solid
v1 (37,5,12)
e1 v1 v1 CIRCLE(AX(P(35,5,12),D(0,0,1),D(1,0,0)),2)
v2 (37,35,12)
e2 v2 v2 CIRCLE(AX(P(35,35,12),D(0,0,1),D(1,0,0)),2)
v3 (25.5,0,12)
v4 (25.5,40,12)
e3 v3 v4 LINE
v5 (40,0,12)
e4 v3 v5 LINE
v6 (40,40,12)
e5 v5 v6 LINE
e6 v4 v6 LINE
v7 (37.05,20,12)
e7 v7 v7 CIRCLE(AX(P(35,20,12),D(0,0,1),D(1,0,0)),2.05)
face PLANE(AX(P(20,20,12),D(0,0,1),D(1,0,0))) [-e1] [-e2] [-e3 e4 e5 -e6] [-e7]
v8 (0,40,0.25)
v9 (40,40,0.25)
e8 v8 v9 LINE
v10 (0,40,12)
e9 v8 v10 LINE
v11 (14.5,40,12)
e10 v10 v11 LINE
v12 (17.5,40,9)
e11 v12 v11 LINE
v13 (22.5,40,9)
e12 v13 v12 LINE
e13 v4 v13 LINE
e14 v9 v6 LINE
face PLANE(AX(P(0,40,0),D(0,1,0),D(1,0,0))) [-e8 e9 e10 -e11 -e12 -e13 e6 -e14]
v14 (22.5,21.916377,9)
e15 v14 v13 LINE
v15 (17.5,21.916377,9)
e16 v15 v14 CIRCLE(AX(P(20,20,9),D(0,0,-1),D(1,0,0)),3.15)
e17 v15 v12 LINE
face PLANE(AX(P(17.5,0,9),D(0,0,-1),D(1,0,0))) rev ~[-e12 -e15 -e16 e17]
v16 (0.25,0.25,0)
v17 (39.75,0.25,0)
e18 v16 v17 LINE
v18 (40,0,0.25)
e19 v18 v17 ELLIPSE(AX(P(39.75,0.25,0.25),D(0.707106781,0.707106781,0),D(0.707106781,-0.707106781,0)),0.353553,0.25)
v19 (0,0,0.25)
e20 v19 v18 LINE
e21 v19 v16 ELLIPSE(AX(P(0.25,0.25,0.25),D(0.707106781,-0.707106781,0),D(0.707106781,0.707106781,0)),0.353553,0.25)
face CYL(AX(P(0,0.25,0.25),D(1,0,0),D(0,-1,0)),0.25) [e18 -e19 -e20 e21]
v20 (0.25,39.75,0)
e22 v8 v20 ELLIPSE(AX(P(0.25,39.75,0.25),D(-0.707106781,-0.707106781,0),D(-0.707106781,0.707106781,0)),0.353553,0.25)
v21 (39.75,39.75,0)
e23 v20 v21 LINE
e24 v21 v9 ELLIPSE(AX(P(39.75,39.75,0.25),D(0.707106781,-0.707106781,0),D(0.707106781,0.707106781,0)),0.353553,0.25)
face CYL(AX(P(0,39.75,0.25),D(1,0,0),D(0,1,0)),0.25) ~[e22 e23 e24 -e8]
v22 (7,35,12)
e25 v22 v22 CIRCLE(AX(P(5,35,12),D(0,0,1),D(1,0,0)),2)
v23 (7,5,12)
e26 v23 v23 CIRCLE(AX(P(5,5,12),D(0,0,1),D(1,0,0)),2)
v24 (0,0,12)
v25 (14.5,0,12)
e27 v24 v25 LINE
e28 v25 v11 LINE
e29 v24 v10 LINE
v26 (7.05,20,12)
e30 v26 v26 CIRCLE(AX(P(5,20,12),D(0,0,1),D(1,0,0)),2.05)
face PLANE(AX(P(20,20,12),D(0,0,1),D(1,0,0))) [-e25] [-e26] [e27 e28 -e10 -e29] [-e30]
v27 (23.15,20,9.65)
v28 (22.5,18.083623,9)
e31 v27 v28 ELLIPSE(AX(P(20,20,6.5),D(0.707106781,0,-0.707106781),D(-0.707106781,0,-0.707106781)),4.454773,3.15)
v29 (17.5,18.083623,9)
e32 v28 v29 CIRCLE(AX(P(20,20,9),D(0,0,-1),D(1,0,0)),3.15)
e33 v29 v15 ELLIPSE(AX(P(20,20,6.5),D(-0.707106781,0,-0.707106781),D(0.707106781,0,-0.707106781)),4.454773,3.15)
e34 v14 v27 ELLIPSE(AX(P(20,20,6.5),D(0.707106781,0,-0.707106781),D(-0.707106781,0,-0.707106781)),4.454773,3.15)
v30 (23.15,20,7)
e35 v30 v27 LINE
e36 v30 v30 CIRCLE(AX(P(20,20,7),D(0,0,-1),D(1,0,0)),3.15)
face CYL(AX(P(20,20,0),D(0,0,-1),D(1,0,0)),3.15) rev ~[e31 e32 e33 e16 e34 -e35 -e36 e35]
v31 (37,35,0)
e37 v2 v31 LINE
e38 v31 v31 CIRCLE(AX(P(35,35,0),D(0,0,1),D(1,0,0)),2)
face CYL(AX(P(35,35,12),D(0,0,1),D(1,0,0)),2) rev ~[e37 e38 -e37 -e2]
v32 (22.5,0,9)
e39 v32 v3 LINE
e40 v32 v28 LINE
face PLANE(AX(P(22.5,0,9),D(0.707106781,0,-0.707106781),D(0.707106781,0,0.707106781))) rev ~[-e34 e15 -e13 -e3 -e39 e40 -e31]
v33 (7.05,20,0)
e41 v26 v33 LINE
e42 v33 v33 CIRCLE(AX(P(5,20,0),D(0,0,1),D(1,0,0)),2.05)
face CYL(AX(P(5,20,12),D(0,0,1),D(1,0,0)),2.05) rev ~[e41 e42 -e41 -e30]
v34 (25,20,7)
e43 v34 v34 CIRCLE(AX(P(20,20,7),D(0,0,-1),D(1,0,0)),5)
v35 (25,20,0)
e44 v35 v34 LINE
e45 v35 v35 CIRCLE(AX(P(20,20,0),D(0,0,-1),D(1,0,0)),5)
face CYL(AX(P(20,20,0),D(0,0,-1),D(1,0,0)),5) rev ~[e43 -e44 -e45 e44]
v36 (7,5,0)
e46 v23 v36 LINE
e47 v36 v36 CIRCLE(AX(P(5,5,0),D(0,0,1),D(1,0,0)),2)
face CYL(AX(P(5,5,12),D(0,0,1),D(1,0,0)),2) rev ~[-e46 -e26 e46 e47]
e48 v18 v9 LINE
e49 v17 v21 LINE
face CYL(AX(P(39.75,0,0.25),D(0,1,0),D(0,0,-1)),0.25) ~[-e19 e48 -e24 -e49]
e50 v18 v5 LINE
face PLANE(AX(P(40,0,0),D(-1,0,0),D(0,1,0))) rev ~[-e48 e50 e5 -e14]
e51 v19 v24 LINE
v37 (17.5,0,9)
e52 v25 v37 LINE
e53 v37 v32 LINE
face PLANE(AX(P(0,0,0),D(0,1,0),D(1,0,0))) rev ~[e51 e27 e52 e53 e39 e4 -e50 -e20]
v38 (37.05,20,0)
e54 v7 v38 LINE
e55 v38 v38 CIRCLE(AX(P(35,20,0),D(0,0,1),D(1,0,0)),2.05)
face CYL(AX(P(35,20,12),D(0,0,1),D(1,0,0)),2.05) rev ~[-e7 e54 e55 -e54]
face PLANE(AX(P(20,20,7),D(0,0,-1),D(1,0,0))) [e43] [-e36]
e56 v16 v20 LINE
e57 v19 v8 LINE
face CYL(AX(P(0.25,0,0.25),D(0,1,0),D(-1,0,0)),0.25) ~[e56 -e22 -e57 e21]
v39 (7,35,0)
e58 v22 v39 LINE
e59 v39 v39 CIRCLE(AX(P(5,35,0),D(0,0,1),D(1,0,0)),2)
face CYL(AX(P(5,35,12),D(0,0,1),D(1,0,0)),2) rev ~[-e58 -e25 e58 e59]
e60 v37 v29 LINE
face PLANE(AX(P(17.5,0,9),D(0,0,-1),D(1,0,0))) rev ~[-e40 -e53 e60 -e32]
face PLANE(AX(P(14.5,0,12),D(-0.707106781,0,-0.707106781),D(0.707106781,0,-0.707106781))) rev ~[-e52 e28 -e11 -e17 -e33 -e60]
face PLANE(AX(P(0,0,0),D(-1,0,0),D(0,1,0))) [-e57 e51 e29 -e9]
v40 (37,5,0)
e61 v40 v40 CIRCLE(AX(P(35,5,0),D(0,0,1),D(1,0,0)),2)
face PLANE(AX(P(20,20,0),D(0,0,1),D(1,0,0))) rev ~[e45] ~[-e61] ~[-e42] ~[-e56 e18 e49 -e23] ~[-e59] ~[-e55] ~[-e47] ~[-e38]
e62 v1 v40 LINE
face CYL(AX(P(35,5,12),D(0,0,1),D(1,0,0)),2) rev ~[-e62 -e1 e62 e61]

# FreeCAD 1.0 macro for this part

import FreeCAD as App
import Part
import Sketcher
from FreeCAD import Vector


def edges_at(feature, points):
    """Names of the edges that pass closest to the given points."""
    edges = feature.Shape.Edges
    near = lambda p: min(range(len(edges)), key=lambda i: edges[i].distToShape(Part.Vertex(*p))[0])
    return sorted({f"Edge{near(p) + 1}" for p in points})

doc = App.newDocument("Part")
params = doc.addObject("Spreadsheet::Sheet", "Params")
for row, (alias, value) in enumerate([
    ("sketch1_width", "40 mm"),
    ("pad1_length", "12 mm"),
    ("sketch2_width", "5 mm"),
    ("sketch2_width2", "11 mm"),
    ("sketch3_diameter", "4 mm"),
    ("sketch4_diameter", "4.1 mm"),
    ("fillet_radius", "0.25 mm"),
    ("sketch5_diameter", "6.3 mm"),
    ("sketch6_diameter", "10 mm"),
    ("pocket5_length", "7 mm"),
], start=1):
    params.set(f"A{row}", alias)
    params.set(f"B{row}", "=" + value)
    params.setAlias(f"B{row}", alias)

body = doc.addObject("PartDesign::Body", "Body")

# Sketch on XY plane
sketch1 = body.newObject("Sketcher::SketchObject", "Sketch")
sketch1.AttachmentSupport = (doc.getObject("XY_Plane"), [""])
sketch1.MapMode = "FlatFace"
sketch1.addGeometry([
    Part.LineSegment(Vector(0, 40, 0), Vector(0, 0, 0)),
    Part.LineSegment(Vector(0, 0, 0), Vector(40, 0, 0)),
    Part.LineSegment(Vector(40, 0, 0), Vector(40, 40, 0)),
    Part.LineSegment(Vector(40, 40, 0), Vector(0, 40, 0)),
], False)
sketch1.addConstraint([
    Sketcher.Constraint("Coincident", 0, 2, 1, 1),
    Sketcher.Constraint("Coincident", 1, 2, 2, 1),
    Sketcher.Constraint("Coincident", 2, 2, 3, 1),
    Sketcher.Constraint("Coincident", 3, 2, 0, 1),
    Sketcher.Constraint("Vertical", 0),
    Sketcher.Constraint("Horizontal", 1),
    Sketcher.Constraint("Vertical", 2),
    Sketcher.Constraint("Horizontal", 3),
    Sketcher.Constraint("Coincident", 0, 2, -1, 1),
    Sketcher.Constraint("Equal", 3, 0),
    Sketcher.Constraint("DistanceX", 1, 1, 1, 2, 40.0),
])
sketch1.setExpression("Constraints[10]", "Params.sketch1_width")
pad1 = body.newObject("PartDesign::Pad", "Pad")
pad1.Profile = sketch1
pad1.setExpression("Length", "Params.pad1_length")

# Sketch on XZ plane
sketch2 = body.newObject("Sketcher::SketchObject", "Sketch001")
sketch2.AttachmentSupport = (doc.getObject("XZ_Plane"), [""])
sketch2.MapMode = "FlatFace"
sketch2.addGeometry([
    Part.LineSegment(Vector(14.5, 12, 0), Vector(17.5, 9, 0)),
    Part.LineSegment(Vector(17.5, 9, 0), Vector(22.5, 9, 0)),
    Part.LineSegment(Vector(22.5, 9, 0), Vector(25.5, 12, 0)),
    Part.LineSegment(Vector(25.5, 12, 0), Vector(14.5, 12, 0)),
], False)
sketch2.addConstraint([
    Sketcher.Constraint("Coincident", 0, 2, 1, 1),
    Sketcher.Constraint("Coincident", 1, 2, 2, 1),
    Sketcher.Constraint("Coincident", 2, 2, 3, 1),
    Sketcher.Constraint("Coincident", 3, 2, 0, 1),
    Sketcher.Constraint("Horizontal", 1),
    Sketcher.Constraint("Horizontal", 3),
    Sketcher.Constraint("Perpendicular", 0, 2),
    Sketcher.Constraint("Equal", 0, 2),
    Sketcher.Constraint("DistanceX", 1, 1, 1, 2, 5.0),
    Sketcher.Constraint("DistanceX", 3, 2, 3, 1, 11.0),
    Sketcher.Constraint("DistanceY", -1, 1, 0, 2, 9.0),
    Sketcher.Constraint("DistanceX", -1, 1, 0, 2, 17.5),
])
sketch2.setExpression("Constraints[8]", "Params.sketch2_width")
sketch2.setExpression("Constraints[9]", "Params.sketch2_width2")
pocket1 = body.newObject("PartDesign::Pocket", "Pocket")
pocket1.Profile = sketch2
pocket1.Type = "ThroughAll"

# Sketch on XY plane
sketch3 = body.newObject("Sketcher::SketchObject", "Sketch002")
sketch3.AttachmentSupport = (doc.getObject("XY_Plane"), [""])
sketch3.MapMode = "FlatFace"
sketch3.AttachmentOffset = App.Placement(Vector(0, 0, 12), App.Rotation())
sketch3.addGeometry([
    Part.Circle(Vector(5, 5, 0), Vector(0, 0, 1), 2),
    Part.Circle(Vector(5, 35, 0), Vector(0, 0, 1), 2),
    Part.Circle(Vector(35, 5, 0), Vector(0, 0, 1), 2),
    Part.Circle(Vector(35, 35, 0), Vector(0, 0, 1), 2),
], False)
sketch3.addConstraint([
    Sketcher.Constraint("Equal", 0, 1),
    Sketcher.Constraint("Equal", 1, 2),
    Sketcher.Constraint("Equal", 2, 3),
    Sketcher.Constraint("Horizontal", 0, 3, 2, 3),
    Sketcher.Constraint("Horizontal", 1, 3, 3, 3),
    Sketcher.Constraint("Vertical", 0, 3, 1, 3),
    Sketcher.Constraint("Vertical", 2, 3, 3, 3),
    Sketcher.Constraint("Diameter", 0, 4.0),
    Sketcher.Constraint("DistanceX", -1, 1, 0, 3, 5.0),
    Sketcher.Constraint("DistanceY", -1, 1, 0, 3, 5.0),
    Sketcher.Constraint("DistanceY", -1, 1, 1, 3, 35.0),
    Sketcher.Constraint("DistanceX", -1, 1, 2, 3, 35.0),
])
sketch3.setExpression("Constraints[7]", "Params.sketch3_diameter")
pocket2 = body.newObject("PartDesign::Pocket", "Pocket001")
pocket2.Profile = sketch3
pocket2.Type = "ThroughAll"

# Sketch on XY plane
sketch4 = body.newObject("Sketcher::SketchObject", "Sketch003")
sketch4.AttachmentSupport = (doc.getObject("XY_Plane"), [""])
sketch4.MapMode = "FlatFace"
sketch4.AttachmentOffset = App.Placement(Vector(0, 0, 12), App.Rotation())
sketch4.addGeometry([
    Part.Circle(Vector(5, 20, 0), Vector(0, 0, 1), 2),
    Part.Circle(Vector(35, 20, 0), Vector(0, 0, 1), 2),
], False)
sketch4.addConstraint([
    Sketcher.Constraint("Equal", 0, 1),
    Sketcher.Constraint("Horizontal", 0, 3, 1, 3),
    Sketcher.Constraint("Diameter", 0, 4.1),
    Sketcher.Constraint("DistanceX", -1, 1, 0, 3, 5.0),
    Sketcher.Constraint("DistanceY", -1, 1, 0, 3, 20.0),
    Sketcher.Constraint("DistanceX", -1, 1, 1, 3, 35.0),
])
sketch4.setExpression("Constraints[2]", "Params.sketch4_diameter")
pocket3 = body.newObject("PartDesign::Pocket", "Pocket002")
pocket3.Profile = sketch4
pocket3.Type = "ThroughAll"
doc.recompute()

fillet = body.newObject("PartDesign::Fillet", "Fillet")
fillet.Base = (pocket3, edges_at(pocket3, [
    (20, 0, 0),
    (0, 20, 0),
    (40, 20, 0),
    (20, 40, 0),
]))
fillet.setExpression("Radius", "Params.fillet_radius")

# Sketch on XY plane
sketch5 = body.newObject("Sketcher::SketchObject", "Sketch004")
sketch5.AttachmentSupport = (doc.getObject("XY_Plane"), [""])
sketch5.MapMode = "FlatFace"
sketch5.addGeometry(Part.Circle(Vector(20, 20, 0), Vector(0, 0, 1), 3.1), False)
sketch5.addConstraint([
    Sketcher.Constraint("Diameter", 0, 6.3),
    Sketcher.Constraint("DistanceX", -1, 1, 0, 3, 20.0),
    Sketcher.Constraint("DistanceY", -1, 1, 0, 3, 20.0),
])
sketch5.setExpression("Constraints[0]", "Params.sketch5_diameter")
pocket4 = body.newObject("PartDesign::Pocket", "Pocket003")
pocket4.Profile = sketch5
pocket4.Type = "ThroughAll"
pocket4.Reversed = True

# Sketch on XY plane
sketch6 = body.newObject("Sketcher::SketchObject", "Sketch005")
sketch6.AttachmentSupport = (doc.getObject("XY_Plane"), [""])
sketch6.MapMode = "FlatFace"
sketch6.addGeometry(Part.Circle(Vector(20, 20, 0), Vector(0, 0, 1), 5), False)
sketch6.addConstraint([
    Sketcher.Constraint("Diameter", 0, 10.0),
    Sketcher.Constraint("DistanceX", -1, 1, 0, 3, 20.0),
    Sketcher.Constraint("DistanceY", -1, 1, 0, 3, 20.0),
])
sketch6.setExpression("Constraints[0]", "Params.sketch6_diameter")
pocket5 = body.newObject("PartDesign::Pocket", "Pocket004")
pocket5.Profile = sketch6
pocket5.setExpression("Length", "Params.pocket5_length")
pocket5.Reversed = True

doc.recompute()
